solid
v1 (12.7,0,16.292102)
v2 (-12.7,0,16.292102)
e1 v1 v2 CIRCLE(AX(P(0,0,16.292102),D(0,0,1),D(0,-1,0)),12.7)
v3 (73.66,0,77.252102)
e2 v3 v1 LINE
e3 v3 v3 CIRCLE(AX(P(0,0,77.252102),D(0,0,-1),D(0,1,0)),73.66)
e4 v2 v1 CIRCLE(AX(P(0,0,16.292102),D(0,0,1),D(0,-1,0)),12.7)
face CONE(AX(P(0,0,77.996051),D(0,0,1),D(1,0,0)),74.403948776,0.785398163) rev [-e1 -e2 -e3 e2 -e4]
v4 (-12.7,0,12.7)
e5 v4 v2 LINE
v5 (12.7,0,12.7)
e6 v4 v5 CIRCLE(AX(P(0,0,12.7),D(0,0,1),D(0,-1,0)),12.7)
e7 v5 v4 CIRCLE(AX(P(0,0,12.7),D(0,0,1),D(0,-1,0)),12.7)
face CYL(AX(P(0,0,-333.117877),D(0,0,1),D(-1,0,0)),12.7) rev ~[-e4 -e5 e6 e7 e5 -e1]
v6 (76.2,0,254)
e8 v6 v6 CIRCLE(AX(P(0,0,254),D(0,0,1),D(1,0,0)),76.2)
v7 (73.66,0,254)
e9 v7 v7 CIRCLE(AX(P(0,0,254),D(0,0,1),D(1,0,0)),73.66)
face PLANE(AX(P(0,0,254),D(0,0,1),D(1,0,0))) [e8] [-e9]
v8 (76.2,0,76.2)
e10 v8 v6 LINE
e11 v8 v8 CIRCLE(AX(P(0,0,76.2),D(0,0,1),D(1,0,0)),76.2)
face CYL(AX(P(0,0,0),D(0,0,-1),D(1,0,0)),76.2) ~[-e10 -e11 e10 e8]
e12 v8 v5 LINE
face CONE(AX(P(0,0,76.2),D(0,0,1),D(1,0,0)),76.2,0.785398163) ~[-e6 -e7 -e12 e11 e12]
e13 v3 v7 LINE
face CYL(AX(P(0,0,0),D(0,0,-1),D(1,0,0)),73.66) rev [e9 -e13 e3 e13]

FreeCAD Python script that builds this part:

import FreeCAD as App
import Part
import Sketcher
Q = App.Units.Quantity


def edges_at(feature, points):
    """Names of the edges that pass closest to the given points."""
    edges = feature.Shape.Edges
    near = lambda p: min(range(len(edges)), key=lambda i: edges[i].distToShape(Part.Vertex(*p))[0])
    return sorted({f"Edge{near(p) + 1}" for p in points})


def faces_at(feature, points):
    """Names of the faces that lie closest to the given points."""
    faces = feature.Shape.Faces
    near = lambda p: min(range(len(faces)), key=lambda i: faces[i].distToShape(Part.Vertex(*p))[0])
    return sorted({f"Face{near(p) + 1}" for p in points})

doc = App.newDocument("Part")
params = doc.addObject("Spreadsheet::Sheet", "Params")
for row, (alias, value) in enumerate([
    ("sketch1_diameter", "6 in"),
    ("pad1_length", "10 in"),
    ("chamfer_size", "3 in"),
    ("thickness_wall", "0.1 in"),
    ("sketch2_diameter", "1 in"),
    ("hole_diameter", "1 in"),
], start=1):
    params.set(f"A{row}", alias)
    params.set(f"B{row}", "=" + value)
    params.setAlias(f"B{row}", alias)

body = doc.addObject("PartDesign::Body", "Body")

sketch1 = body.newObject("Sketcher::SketchObject", "Sketch")
sketch1.AttachmentSupport = (doc.getObject("XY_Plane"), [""])
sketch1.MapMode = "FlatFace"
sketch1.addGeometry(Part.Circle(App.Vector(0, 0, 0), App.Vector(0, 0, 1), 76), False)
sketch1.addConstraint([
    Sketcher.Constraint("Coincident", 0, 3, -1, 1),
    Sketcher.Constraint("Diameter", 0, Q("6 in")),
])
sketch1.setExpression("Constraints[1]", "Params.sketch1_diameter")
pad1 = body.newObject("PartDesign::Pad", "Pad")
pad1.Profile = sketch1
pad1.setExpression("Length", "Params.pad1_length")
doc.recompute()

chamfer = body.newObject("PartDesign::Chamfer", "Chamfer")
chamfer.Base = (pad1, edges_at(pad1, [(-76.2, 0, 0)]))
chamfer.setExpression("Size", "Params.chamfer_size")
doc.recompute()

thickness = body.newObject("PartDesign::Thickness", "Thickness")
thickness.Base = (chamfer, faces_at(chamfer, [(0, 0, 254)]))
thickness.setExpression("Value", "Params.thickness_wall")
thickness.Reversed = True
thickness.Join = "Arc"

sketch2 = body.newObject("Sketcher::SketchObject", "Sketch001")
sketch2.AttachmentSupport = (doc.getObject("XY_Plane"), [""])
sketch2.MapMode = "FlatFace"
sketch2.addGeometry(Part.Circle(App.Vector(0, 0, 0), App.Vector(0, 0, 1), 13), False)
sketch2.addConstraint([
    Sketcher.Constraint("Coincident", 0, 3, -1, 1),
    Sketcher.Constraint("Diameter", 0, Q("1 in")),
])
sketch2.setExpression("Constraints[1]", "Params.sketch2_diameter")
doc.recompute()
hole = body.newObject("PartDesign::Hole", "Hole")
hole.Profile = sketch2
hole.ThreadType = "None"
hole.setExpression("Diameter", "Params.hole_diameter")
hole.DepthType = "ThroughAll"
hole.Reversed = True

doc.recompute()
